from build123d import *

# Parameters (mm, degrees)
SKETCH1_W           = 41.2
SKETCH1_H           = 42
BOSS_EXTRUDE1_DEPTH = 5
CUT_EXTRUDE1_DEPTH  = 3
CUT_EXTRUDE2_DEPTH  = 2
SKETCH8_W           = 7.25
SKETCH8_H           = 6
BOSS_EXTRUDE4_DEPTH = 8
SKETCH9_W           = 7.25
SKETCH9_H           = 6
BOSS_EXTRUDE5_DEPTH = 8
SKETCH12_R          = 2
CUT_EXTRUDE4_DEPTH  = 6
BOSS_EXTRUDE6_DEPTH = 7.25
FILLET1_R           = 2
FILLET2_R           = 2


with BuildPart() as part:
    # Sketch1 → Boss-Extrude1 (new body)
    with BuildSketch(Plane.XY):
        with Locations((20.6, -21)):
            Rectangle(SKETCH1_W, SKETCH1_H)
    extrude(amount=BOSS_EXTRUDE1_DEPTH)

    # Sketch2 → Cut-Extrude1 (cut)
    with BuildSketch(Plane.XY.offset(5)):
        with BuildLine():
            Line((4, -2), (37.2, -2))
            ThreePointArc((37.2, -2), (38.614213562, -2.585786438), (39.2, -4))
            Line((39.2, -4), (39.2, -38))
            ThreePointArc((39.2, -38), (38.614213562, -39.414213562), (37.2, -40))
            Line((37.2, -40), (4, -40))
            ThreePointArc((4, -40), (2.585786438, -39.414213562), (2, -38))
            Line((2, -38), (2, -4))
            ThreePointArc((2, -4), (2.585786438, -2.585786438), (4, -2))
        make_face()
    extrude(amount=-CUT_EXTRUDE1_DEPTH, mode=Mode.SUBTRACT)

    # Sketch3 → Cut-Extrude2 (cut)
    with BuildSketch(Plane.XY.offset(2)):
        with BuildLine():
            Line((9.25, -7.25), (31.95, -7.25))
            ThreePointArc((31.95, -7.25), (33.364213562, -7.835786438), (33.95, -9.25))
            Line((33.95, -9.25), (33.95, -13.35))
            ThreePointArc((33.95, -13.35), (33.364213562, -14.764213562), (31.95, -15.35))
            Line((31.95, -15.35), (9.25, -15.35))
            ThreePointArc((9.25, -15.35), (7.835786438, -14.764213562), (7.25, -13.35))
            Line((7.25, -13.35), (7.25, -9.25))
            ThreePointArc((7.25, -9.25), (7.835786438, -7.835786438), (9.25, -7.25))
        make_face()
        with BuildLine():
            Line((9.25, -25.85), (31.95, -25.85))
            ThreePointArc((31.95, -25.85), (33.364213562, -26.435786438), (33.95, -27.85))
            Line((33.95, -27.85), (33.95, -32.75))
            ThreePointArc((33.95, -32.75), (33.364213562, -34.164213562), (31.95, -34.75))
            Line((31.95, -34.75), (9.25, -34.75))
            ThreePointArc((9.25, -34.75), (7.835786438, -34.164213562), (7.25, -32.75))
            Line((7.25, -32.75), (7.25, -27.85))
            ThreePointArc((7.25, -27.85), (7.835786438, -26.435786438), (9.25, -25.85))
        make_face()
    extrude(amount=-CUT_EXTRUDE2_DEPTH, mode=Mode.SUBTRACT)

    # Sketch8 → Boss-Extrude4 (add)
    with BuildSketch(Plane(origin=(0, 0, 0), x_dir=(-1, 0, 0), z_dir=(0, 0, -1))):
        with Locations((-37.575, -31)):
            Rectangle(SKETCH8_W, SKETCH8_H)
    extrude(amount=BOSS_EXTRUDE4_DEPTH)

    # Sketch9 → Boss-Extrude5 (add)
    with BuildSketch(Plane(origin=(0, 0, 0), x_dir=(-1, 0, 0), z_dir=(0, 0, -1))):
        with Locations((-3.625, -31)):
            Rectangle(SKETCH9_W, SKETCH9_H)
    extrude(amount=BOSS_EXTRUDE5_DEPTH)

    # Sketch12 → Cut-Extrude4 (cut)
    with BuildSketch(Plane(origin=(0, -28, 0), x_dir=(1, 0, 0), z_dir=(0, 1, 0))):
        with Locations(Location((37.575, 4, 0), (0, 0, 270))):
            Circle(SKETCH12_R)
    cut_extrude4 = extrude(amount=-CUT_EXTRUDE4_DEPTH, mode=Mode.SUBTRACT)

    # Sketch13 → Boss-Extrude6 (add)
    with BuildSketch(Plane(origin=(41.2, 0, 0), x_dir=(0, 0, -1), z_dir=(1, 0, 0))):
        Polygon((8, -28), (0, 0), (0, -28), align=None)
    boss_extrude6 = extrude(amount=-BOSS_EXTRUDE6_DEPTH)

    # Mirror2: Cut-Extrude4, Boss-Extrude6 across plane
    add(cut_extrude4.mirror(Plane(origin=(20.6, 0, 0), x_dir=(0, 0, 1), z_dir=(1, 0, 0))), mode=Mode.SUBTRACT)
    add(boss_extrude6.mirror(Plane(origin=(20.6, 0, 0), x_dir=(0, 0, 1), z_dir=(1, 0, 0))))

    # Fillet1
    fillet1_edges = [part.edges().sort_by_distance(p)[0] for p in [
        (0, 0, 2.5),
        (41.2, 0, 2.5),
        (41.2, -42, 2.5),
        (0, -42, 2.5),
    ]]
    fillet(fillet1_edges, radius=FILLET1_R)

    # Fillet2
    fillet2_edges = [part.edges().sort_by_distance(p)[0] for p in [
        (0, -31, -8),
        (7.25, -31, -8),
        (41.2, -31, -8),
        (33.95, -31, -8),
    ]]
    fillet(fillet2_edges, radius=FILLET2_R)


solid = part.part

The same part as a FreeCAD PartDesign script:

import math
import FreeCAD as App
import Part
import Sketcher
from FreeCAD import Vector


def edges_at(feature, points):
    """Names of the edges that pass closest to the given points."""
    edges = feature.Shape.Edges
    near = lambda p: min(range(len(edges)), key=lambda i: edges[i].distToShape(Part.Vertex(*p))[0])
    return sorted({f"Edge{near(p) + 1}" for p in points})

doc = App.newDocument("Part")
params = doc.addObject("Spreadsheet::Sheet", "Params")
for row, (alias, value) in enumerate([
    ("sketch1_height", "42 mm"),
    ("sketch1_width", "41.2 mm"),
    ("pad1_length", "5 mm"),
    ("sketch2_radius", "2 mm"),
    ("sketch2_height", "34 mm"),
    ("sketch2_width", "33.2 mm"),
    ("pocket1_length", "3 mm"),
    ("sketch3_radius", "2 mm"),
    ("sketch3_width", "22.7 mm"),
    ("sketch3_height", "4.1 mm"),
    ("sketch3_height2", "4.9 mm"),
    ("pocket2_length", "2 mm"),
    ("sketch4_height", "6 mm"),
    ("sketch4_width", "7.25 mm"),
    ("pad2_length", "8 mm"),
    ("sketch5_height", "6 mm"),
    ("sketch5_width", "7.25 mm"),
    ("pad3_length", "8 mm"),
    ("sketch6_diameter", "4 mm"),
    ("pocket3_length", "6 mm"),
    ("sketch7_width", "28 mm"),
    ("sketch7_height", "8 mm"),
    ("pad4_length", "7.25 mm"),
    ("fillet_radius", "2 mm"),
    ("fillet2_radius", "2 mm"),
], start=1):
    params.set(f"A{row}", alias)
    params.set(f"B{row}", "=" + value)
    params.setAlias(f"B{row}", alias)

body = doc.addObject("PartDesign::Body", "Body")

sketch1 = body.newObject("Sketcher::SketchObject", "Sketch")
sketch1.AttachmentSupport = (doc.getObject("XY_Plane"), [""])
sketch1.MapMode = "FlatFace"
sketch1.addGeometry([
    Part.LineSegment(Vector(0, 0, 0), Vector(0, -42, 0)),
    Part.LineSegment(Vector(0, -42, 0), Vector(41.2, -42, 0)),
    Part.LineSegment(Vector(41.2, -42, 0), Vector(41.2, 0, 0)),
    Part.LineSegment(Vector(41.2, 0, 0), Vector(0, 0, 0)),
], False)
sketch1.addConstraint([
    Sketcher.Constraint("Coincident", 0, 2, 1, 1),
    Sketcher.Constraint("Coincident", 1, 2, 2, 1),
    Sketcher.Constraint("Coincident", 2, 2, 3, 1),
    Sketcher.Constraint("Coincident", 3, 2, 0, 1),
    Sketcher.Constraint("Vertical", 0),
    Sketcher.Constraint("Horizontal", 1),
    Sketcher.Constraint("Vertical", 2),
    Sketcher.Constraint("Horizontal", 3),
    Sketcher.Constraint("Coincident", 3, 2, -1, 1),
    Sketcher.Constraint("DistanceY", 0, 2, 0, 1, 42.0),
    Sketcher.Constraint("DistanceX", 1, 1, 1, 2, 41.2),
])
sketch1.setExpression("Constraints[9]", "Params.sketch1_height")
sketch1.setExpression("Constraints[10]", "Params.sketch1_width")
pad1 = body.newObject("PartDesign::Pad", "Pad")
pad1.Profile = sketch1
pad1.setExpression("Length", "Params.pad1_length")

sketch2 = body.newObject("Sketcher::SketchObject", "Sketch001")
sketch2.AttachmentSupport = (doc.getObject("XY_Plane"), [""])
sketch2.MapMode = "FlatFace"
sketch2.AttachmentOffset = App.Placement(Vector(0, 0, 5), App.Rotation())
sketch2.addGeometry([
    Part.LineSegment(Vector(37.2, -2, 0), Vector(4, -2, 0)),
    Part.ArcOfCircle(Part.Circle(Vector(4, -4, 0), Vector(0, 0, 1), 2), math.radians(90), math.radians(180)),
    Part.LineSegment(Vector(2, -4, 0), Vector(2, -38, 0)),
    Part.ArcOfCircle(Part.Circle(Vector(4, -38, 0), Vector(0, 0, 1), 2), math.radians(-180), math.radians(-90)),
    Part.LineSegment(Vector(4, -40, 0), Vector(37.2, -40, 0)),
    Part.ArcOfCircle(Part.Circle(Vector(37.2, -38, 0), Vector(0, 0, 1), 2), math.radians(-90), math.radians(0)),
    Part.LineSegment(Vector(39.2, -38, 0), Vector(39.2, -4, 0)),
    Part.ArcOfCircle(Part.Circle(Vector(37.2, -4, 0), Vector(0, 0, 1), 2), math.radians(0), math.radians(90)),
], False)
sketch2.addConstraint([
    Sketcher.Constraint("Tangent", 0, 2, 1, 1),
    Sketcher.Constraint("Tangent", 1, 2, 2, 1),
    Sketcher.Constraint("Tangent", 2, 2, 3, 1),
    Sketcher.Constraint("Tangent", 3, 2, 4, 1),
    Sketcher.Constraint("Tangent", 4, 2, 5, 1),
    Sketcher.Constraint("Tangent", 5, 2, 6, 1),
    Sketcher.Constraint("Tangent", 6, 2, 7, 1),
    Sketcher.Constraint("Tangent", 7, 2, 0, 1),
    Sketcher.Constraint("Horizontal", 0),
    Sketcher.Constraint("Vertical", 2),
    Sketcher.Constraint("Horizontal", 4),
    Sketcher.Constraint("Vertical", 6),
    Sketcher.Constraint("Equal", 1, 3),
    Sketcher.Constraint("Equal", 3, 5),
    Sketcher.Constraint("Equal", 5, 7),
    Sketcher.Constraint("Radius", 1, 2.0),
    Sketcher.Constraint("DistanceY", 2, 2, 2, 1, 34.0),
    Sketcher.Constraint("DistanceX", 0, 2, 0, 1, 33.2),
    Sketcher.Constraint("DistanceX", -1, 1, 1, 3, 4.0),
    Sketcher.Constraint("DistanceY", 1, 3, -1, 1, 4.0),
])
sketch2.setExpression("Constraints[15]", "Params.sketch2_radius")
sketch2.setExpression("Constraints[16]", "Params.sketch2_height")
sketch2.setExpression("Constraints[17]", "Params.sketch2_width")
pocket1 = body.newObject("PartDesign::Pocket", "Pocket")
pocket1.Profile = sketch2
pocket1.setExpression("Length", "Params.pocket1_length")

sketch3 = body.newObject("Sketcher::SketchObject", "Sketch002")
sketch3.AttachmentSupport = (doc.getObject("XY_Plane"), [""])
sketch3.MapMode = "FlatFace"
sketch3.AttachmentOffset = App.Placement(Vector(0, 0, 2), App.Rotation())
sketch3.addGeometry([
    Part.LineSegment(Vector(31.95, -7.25, 0), Vector(9.25, -7.25, 0)),
    Part.ArcOfCircle(Part.Circle(Vector(9.25, -9.25, 0), Vector(0, 0, 1), 2), math.radians(90), math.radians(180)),
    Part.LineSegment(Vector(7.25, -9.25, 0), Vector(7.25, -13.35, 0)),
    Part.ArcOfCircle(Part.Circle(Vector(9.25, -13.35, 0), Vector(0, 0, 1), 2), math.radians(-180), math.radians(-90)),
    Part.LineSegment(Vector(9.25, -15.35, 0), Vector(31.95, -15.35, 0)),
    Part.ArcOfCircle(Part.Circle(Vector(31.95, -13.35, 0), Vector(0, 0, 1), 2), math.radians(-90), math.radians(0)),
    Part.LineSegment(Vector(33.95, -13.35, 0), Vector(33.95, -9.25, 0)),
    Part.ArcOfCircle(Part.Circle(Vector(31.95, -9.25, 0), Vector(0, 0, 1), 2), math.radians(0), math.radians(90)),
    Part.LineSegment(Vector(31.95, -25.85, 0), Vector(9.25, -25.85, 0)),
    Part.ArcOfCircle(Part.Circle(Vector(9.25, -27.85, 0), Vector(0, 0, 1), 2), math.radians(90), math.radians(180)),
    Part.LineSegment(Vector(7.25, -27.85, 0), Vector(7.25, -32.75, 0)),
    Part.ArcOfCircle(Part.Circle(Vector(9.25, -32.75, 0), Vector(0, 0, 1), 2), math.radians(-180), math.radians(-90)),
    Part.LineSegment(Vector(9.25, -34.75, 0), Vector(31.95, -34.75, 0)),
    Part.ArcOfCircle(Part.Circle(Vector(31.95, -32.75, 0), Vector(0, 0, 1), 2), math.radians(-90), math.radians(0)),
    Part.LineSegment(Vector(33.95, -32.75, 0), Vector(33.95, -27.85, 0)),
    Part.ArcOfCircle(Part.Circle(Vector(31.95, -27.85, 0), Vector(0, 0, 1), 2), math.radians(0), math.radians(90)),
], False)
sketch3.addConstraint([
    Sketcher.Constraint("Tangent", 0, 2, 1, 1),
    Sketcher.Constraint("Tangent", 1, 2, 2, 1),
    Sketcher.Constraint("Tangent", 2, 2, 3, 1),
    Sketcher.Constraint("Tangent", 3, 2, 4, 1),
    Sketcher.Constraint("Tangent", 4, 2, 5, 1),
    Sketcher.Constraint("Tangent", 5, 2, 6, 1),
    Sketcher.Constraint("Tangent", 6, 2, 7, 1),
    Sketcher.Constraint("Tangent", 7, 2, 0, 1),
    Sketcher.Constraint("Tangent", 8, 2, 9, 1),
    Sketcher.Constraint("Tangent", 9, 2, 10, 1),
    Sketcher.Constraint("Tangent", 10, 2, 11, 1),
    Sketcher.Constraint("Tangent", 11, 2, 12, 1),
    Sketcher.Constraint("Tangent", 12, 2, 13, 1),
    Sketcher.Constraint("Tangent", 13, 2, 14, 1),
    Sketcher.Constraint("Tangent", 14, 2, 15, 1),
    Sketcher.Constraint("Tangent", 15, 2, 8, 1),
    Sketcher.Constraint("Horizontal", 0),
    Sketcher.Constraint("Vertical", 2),
    Sketcher.Constraint("Horizontal", 4),
    Sketcher.Constraint("Vertical", 6),
    Sketcher.Constraint("Horizontal", 8),
    Sketcher.Constraint("Vertical", 10),
    Sketcher.Constraint("Horizontal", 12),
    Sketcher.Constraint("Vertical", 14),
    Sketcher.Constraint("Equal", 1, 3),
    Sketcher.Constraint("Equal", 3, 5),
    Sketcher.Constraint("Equal", 5, 7),
    Sketcher.Constraint("Equal", 7, 9),
    Sketcher.Constraint("Equal", 9, 11),
    Sketcher.Constraint("Equal", 11, 13),
    Sketcher.Constraint("Equal", 13, 15),
    Sketcher.Constraint("Vertical", 3, 3, 9, 3),
    Sketcher.Constraint("Vertical", 7, 3, 13, 3),
    Sketcher.Constraint("Radius", 1, 2.0),
    Sketcher.Constraint("DistanceX", 0, 2, 0, 1, 22.7),
    Sketcher.Constraint("DistanceY", 2, 2, 2, 1, 4.1),
    Sketcher.Constraint("DistanceY", 10, 2, 10, 1, 4.9),
    Sketcher.Constraint("DistanceY", 9, 3, 3, 3, 14.5),
    Sketcher.Constraint("DistanceX", -1, 1, 1, 3, 9.25),
    Sketcher.Constraint("DistanceY", 1, 3, -1, 1, 9.25),
])
sketch3.setExpression("Constraints[33]", "Params.sketch3_radius")
sketch3.setExpression("Constraints[34]", "Params.sketch3_width")
sketch3.setExpression("Constraints[35]", "Params.sketch3_height")
sketch3.setExpression("Constraints[36]", "Params.sketch3_height2")
pocket2 = body.newObject("PartDesign::Pocket", "Pocket001")
pocket2.Profile = sketch3
pocket2.setExpression("Length", "Params.pocket2_length")

sketch4 = body.newObject("Sketcher::SketchObject", "Sketch003")
sketch4.AttachmentSupport = (doc.getObject("XY_Plane"), [""])
sketch4.MapMode = "FlatFace"
sketch4.addGeometry([
    Part.LineSegment(Vector(41.2, -28, 0), Vector(41.2, -34, 0)),
    Part.LineSegment(Vector(41.2, -34, 0), Vector(33.95, -34, 0)),
    Part.LineSegment(Vector(33.95, -34, 0), Vector(33.95, -28, 0)),
    Part.LineSegment(Vector(33.95, -28, 0), Vector(41.2, -28, 0)),
], False)
sketch4.addConstraint([
    Sketcher.Constraint("Coincident", 0, 2, 1, 1),
    Sketcher.Constraint("Coincident", 1, 2, 2, 1),
    Sketcher.Constraint("Coincident", 2, 2, 3, 1),
    Sketcher.Constraint("Coincident", 3, 2, 0, 1),
    Sketcher.Constraint("Vertical", 0),
    Sketcher.Constraint("Horizontal", 1),
    Sketcher.Constraint("Vertical", 2),
    Sketcher.Constraint("Horizontal", 3),
    Sketcher.Constraint("DistanceY", 0, 2, 0, 1, 6.0),
    Sketcher.Constraint("DistanceY", 0, 2, -1, 1, 34.0),
    Sketcher.Constraint("DistanceX", 1, 2, 1, 1, 7.25),
    Sketcher.Constraint("DistanceX", -1, 1, 0, 2, 41.2),
])
sketch4.setExpression("Constraints[8]", "Params.sketch4_height")
sketch4.setExpression("Constraints[10]", "Params.sketch4_width")
pad2 = body.newObject("PartDesign::Pad", "Pad001")
pad2.Profile = sketch4
pad2.setExpression("Length", "Params.pad2_length")
pad2.Reversed = True

sketch5 = body.newObject("Sketcher::SketchObject", "Sketch004")
sketch5.AttachmentSupport = (doc.getObject("XY_Plane"), [""])
sketch5.MapMode = "FlatFace"
sketch5.addGeometry([
    Part.LineSegment(Vector(7.25, -28, 0), Vector(7.25, -34, 0)),
    Part.LineSegment(Vector(7.25, -34, 0), Vector(0, -34, 0)),
    Part.LineSegment(Vector(0, -34, 0), Vector(0, -28, 0)),
    Part.LineSegment(Vector(0, -28, 0), Vector(7.25, -28, 0)),
], False)
sketch5.addConstraint([
    Sketcher.Constraint("Coincident", 0, 2, 1, 1),
    Sketcher.Constraint("Coincident", 1, 2, 2, 1),
    Sketcher.Constraint("Coincident", 2, 2, 3, 1),
    Sketcher.Constraint("Coincident", 3, 2, 0, 1),
    Sketcher.Constraint("Vertical", 0),
    Sketcher.Constraint("Horizontal", 1),
    Sketcher.Constraint("Vertical", 2),
    Sketcher.Constraint("Horizontal", 3),
    Sketcher.Constraint("PointOnObject", 1, 2, -2),
    Sketcher.Constraint("DistanceY", 0, 2, 0, 1, 6.0),
    Sketcher.Constraint("DistanceY", 0, 2, -1, 1, 34.0),
    Sketcher.Constraint("DistanceX", 1, 2, 1, 1, 7.25),
])
sketch5.setExpression("Constraints[9]", "Params.sketch5_height")
sketch5.setExpression("Constraints[11]", "Params.sketch5_width")
pad3 = body.newObject("PartDesign::Pad", "Pad002")
pad3.Profile = sketch5
pad3.setExpression("Length", "Params.pad3_length")
pad3.Reversed = True

sketch6 = body.newObject("Sketcher::SketchObject", "Sketch005")
sketch6.AttachmentSupport = (doc.getObject("XZ_Plane"), [""])
sketch6.MapMode = "FlatFace"
sketch6.AttachmentOffset = App.Placement(Vector(0, 0, 28), App.Rotation())
sketch6.addGeometry(Part.Circle(Vector(37.575, -4, 0), Vector(0, 0, 1), 2), False)
sketch6.addConstraint([
    Sketcher.Constraint("Diameter", 0, 4.0),
    Sketcher.Constraint("DistanceY", 0, 3, -1, 1, 4.0),
    Sketcher.Constraint("DistanceX", -1, 1, 0, 3, 37.575),
])
sketch6.setExpression("Constraints[0]", "Params.sketch6_diameter")
pocket3 = body.newObject("PartDesign::Pocket", "Pocket002")
pocket3.Profile = sketch6
pocket3.setExpression("Length", "Params.pocket3_length")
pocket3.Reversed = True

sketch7 = body.newObject("Sketcher::SketchObject", "Sketch006")
sketch7.AttachmentSupport = (doc.getObject("YZ_Plane"), [""])
sketch7.MapMode = "FlatFace"
sketch7.AttachmentOffset = App.Placement(Vector(0, 0, 41.2), App.Rotation())
sketch7.addGeometry([
    Part.LineSegment(Vector(-28, -8, 0), Vector(0, 0, 0)),
    Part.LineSegment(Vector(0, 0, 0), Vector(-28, 0, 0)),
    Part.LineSegment(Vector(-28, 0, 0), Vector(-28, -8, 0)),
], False)
sketch7.addConstraint([
    Sketcher.Constraint("Coincident", 0, 2, 1, 1),
    Sketcher.Constraint("Coincident", 1, 2, 2, 1),
    Sketcher.Constraint("Coincident", 2, 2, 0, 1),
    Sketcher.Constraint("Horizontal", 1),
    Sketcher.Constraint("Vertical", 2),
    Sketcher.Constraint("Coincident", 0, 2, -1, 1),
    Sketcher.Constraint("DistanceX", 1, 2, 1, 1, 28.0),
    Sketcher.Constraint("DistanceY", 2, 2, 2, 1, 8.0),
])
sketch7.setExpression("Constraints[6]", "Params.sketch7_width")
sketch7.setExpression("Constraints[7]", "Params.sketch7_height")
pad4 = body.newObject("PartDesign::Pad", "Pad003")
pad4.Profile = sketch7
pad4.setExpression("Length", "Params.pad4_length")
pad4.Reversed = True
doc.recompute()

datumplane = body.newObject("PartDesign::Plane", "DatumPlane")
datumplane.AttachmentSupport = (doc.getObject("YZ_Plane"), [""])
datumplane.MapMode = "FlatFace"
datumplane.AttachmentOffset = App.Placement(Vector(0, 0, 20.6), App.Rotation())
mirrored = body.newObject("PartDesign::Mirrored", "Mirrored")
mirrored.Originals = [pocket3, pad4]
mirrored.MirrorPlane = (datumplane, [""])
body.Tip = mirrored
doc.recompute()

fillet = body.newObject("PartDesign::Fillet", "Fillet")
fillet.Base = (mirrored, edges_at(mirrored, [
    (0, 0, 2.5),
    (41.2, 0, 2.5),
    (41.2, -42, 2.5),
    (0, -42, 2.5),
]))
fillet.setExpression("Radius", "Params.fillet_radius")
doc.recompute()

fillet2 = body.newObject("PartDesign::Fillet", "Fillet001")
fillet2.Base = (fillet, edges_at(fillet, [
    (0, -31, -8),
    (7.25, -31, -8),
    (41.2, -31, -8),
    (33.95, -31, -8),
]))
fillet2.setExpression("Radius", "Params.fillet2_radius")

doc.recompute()
